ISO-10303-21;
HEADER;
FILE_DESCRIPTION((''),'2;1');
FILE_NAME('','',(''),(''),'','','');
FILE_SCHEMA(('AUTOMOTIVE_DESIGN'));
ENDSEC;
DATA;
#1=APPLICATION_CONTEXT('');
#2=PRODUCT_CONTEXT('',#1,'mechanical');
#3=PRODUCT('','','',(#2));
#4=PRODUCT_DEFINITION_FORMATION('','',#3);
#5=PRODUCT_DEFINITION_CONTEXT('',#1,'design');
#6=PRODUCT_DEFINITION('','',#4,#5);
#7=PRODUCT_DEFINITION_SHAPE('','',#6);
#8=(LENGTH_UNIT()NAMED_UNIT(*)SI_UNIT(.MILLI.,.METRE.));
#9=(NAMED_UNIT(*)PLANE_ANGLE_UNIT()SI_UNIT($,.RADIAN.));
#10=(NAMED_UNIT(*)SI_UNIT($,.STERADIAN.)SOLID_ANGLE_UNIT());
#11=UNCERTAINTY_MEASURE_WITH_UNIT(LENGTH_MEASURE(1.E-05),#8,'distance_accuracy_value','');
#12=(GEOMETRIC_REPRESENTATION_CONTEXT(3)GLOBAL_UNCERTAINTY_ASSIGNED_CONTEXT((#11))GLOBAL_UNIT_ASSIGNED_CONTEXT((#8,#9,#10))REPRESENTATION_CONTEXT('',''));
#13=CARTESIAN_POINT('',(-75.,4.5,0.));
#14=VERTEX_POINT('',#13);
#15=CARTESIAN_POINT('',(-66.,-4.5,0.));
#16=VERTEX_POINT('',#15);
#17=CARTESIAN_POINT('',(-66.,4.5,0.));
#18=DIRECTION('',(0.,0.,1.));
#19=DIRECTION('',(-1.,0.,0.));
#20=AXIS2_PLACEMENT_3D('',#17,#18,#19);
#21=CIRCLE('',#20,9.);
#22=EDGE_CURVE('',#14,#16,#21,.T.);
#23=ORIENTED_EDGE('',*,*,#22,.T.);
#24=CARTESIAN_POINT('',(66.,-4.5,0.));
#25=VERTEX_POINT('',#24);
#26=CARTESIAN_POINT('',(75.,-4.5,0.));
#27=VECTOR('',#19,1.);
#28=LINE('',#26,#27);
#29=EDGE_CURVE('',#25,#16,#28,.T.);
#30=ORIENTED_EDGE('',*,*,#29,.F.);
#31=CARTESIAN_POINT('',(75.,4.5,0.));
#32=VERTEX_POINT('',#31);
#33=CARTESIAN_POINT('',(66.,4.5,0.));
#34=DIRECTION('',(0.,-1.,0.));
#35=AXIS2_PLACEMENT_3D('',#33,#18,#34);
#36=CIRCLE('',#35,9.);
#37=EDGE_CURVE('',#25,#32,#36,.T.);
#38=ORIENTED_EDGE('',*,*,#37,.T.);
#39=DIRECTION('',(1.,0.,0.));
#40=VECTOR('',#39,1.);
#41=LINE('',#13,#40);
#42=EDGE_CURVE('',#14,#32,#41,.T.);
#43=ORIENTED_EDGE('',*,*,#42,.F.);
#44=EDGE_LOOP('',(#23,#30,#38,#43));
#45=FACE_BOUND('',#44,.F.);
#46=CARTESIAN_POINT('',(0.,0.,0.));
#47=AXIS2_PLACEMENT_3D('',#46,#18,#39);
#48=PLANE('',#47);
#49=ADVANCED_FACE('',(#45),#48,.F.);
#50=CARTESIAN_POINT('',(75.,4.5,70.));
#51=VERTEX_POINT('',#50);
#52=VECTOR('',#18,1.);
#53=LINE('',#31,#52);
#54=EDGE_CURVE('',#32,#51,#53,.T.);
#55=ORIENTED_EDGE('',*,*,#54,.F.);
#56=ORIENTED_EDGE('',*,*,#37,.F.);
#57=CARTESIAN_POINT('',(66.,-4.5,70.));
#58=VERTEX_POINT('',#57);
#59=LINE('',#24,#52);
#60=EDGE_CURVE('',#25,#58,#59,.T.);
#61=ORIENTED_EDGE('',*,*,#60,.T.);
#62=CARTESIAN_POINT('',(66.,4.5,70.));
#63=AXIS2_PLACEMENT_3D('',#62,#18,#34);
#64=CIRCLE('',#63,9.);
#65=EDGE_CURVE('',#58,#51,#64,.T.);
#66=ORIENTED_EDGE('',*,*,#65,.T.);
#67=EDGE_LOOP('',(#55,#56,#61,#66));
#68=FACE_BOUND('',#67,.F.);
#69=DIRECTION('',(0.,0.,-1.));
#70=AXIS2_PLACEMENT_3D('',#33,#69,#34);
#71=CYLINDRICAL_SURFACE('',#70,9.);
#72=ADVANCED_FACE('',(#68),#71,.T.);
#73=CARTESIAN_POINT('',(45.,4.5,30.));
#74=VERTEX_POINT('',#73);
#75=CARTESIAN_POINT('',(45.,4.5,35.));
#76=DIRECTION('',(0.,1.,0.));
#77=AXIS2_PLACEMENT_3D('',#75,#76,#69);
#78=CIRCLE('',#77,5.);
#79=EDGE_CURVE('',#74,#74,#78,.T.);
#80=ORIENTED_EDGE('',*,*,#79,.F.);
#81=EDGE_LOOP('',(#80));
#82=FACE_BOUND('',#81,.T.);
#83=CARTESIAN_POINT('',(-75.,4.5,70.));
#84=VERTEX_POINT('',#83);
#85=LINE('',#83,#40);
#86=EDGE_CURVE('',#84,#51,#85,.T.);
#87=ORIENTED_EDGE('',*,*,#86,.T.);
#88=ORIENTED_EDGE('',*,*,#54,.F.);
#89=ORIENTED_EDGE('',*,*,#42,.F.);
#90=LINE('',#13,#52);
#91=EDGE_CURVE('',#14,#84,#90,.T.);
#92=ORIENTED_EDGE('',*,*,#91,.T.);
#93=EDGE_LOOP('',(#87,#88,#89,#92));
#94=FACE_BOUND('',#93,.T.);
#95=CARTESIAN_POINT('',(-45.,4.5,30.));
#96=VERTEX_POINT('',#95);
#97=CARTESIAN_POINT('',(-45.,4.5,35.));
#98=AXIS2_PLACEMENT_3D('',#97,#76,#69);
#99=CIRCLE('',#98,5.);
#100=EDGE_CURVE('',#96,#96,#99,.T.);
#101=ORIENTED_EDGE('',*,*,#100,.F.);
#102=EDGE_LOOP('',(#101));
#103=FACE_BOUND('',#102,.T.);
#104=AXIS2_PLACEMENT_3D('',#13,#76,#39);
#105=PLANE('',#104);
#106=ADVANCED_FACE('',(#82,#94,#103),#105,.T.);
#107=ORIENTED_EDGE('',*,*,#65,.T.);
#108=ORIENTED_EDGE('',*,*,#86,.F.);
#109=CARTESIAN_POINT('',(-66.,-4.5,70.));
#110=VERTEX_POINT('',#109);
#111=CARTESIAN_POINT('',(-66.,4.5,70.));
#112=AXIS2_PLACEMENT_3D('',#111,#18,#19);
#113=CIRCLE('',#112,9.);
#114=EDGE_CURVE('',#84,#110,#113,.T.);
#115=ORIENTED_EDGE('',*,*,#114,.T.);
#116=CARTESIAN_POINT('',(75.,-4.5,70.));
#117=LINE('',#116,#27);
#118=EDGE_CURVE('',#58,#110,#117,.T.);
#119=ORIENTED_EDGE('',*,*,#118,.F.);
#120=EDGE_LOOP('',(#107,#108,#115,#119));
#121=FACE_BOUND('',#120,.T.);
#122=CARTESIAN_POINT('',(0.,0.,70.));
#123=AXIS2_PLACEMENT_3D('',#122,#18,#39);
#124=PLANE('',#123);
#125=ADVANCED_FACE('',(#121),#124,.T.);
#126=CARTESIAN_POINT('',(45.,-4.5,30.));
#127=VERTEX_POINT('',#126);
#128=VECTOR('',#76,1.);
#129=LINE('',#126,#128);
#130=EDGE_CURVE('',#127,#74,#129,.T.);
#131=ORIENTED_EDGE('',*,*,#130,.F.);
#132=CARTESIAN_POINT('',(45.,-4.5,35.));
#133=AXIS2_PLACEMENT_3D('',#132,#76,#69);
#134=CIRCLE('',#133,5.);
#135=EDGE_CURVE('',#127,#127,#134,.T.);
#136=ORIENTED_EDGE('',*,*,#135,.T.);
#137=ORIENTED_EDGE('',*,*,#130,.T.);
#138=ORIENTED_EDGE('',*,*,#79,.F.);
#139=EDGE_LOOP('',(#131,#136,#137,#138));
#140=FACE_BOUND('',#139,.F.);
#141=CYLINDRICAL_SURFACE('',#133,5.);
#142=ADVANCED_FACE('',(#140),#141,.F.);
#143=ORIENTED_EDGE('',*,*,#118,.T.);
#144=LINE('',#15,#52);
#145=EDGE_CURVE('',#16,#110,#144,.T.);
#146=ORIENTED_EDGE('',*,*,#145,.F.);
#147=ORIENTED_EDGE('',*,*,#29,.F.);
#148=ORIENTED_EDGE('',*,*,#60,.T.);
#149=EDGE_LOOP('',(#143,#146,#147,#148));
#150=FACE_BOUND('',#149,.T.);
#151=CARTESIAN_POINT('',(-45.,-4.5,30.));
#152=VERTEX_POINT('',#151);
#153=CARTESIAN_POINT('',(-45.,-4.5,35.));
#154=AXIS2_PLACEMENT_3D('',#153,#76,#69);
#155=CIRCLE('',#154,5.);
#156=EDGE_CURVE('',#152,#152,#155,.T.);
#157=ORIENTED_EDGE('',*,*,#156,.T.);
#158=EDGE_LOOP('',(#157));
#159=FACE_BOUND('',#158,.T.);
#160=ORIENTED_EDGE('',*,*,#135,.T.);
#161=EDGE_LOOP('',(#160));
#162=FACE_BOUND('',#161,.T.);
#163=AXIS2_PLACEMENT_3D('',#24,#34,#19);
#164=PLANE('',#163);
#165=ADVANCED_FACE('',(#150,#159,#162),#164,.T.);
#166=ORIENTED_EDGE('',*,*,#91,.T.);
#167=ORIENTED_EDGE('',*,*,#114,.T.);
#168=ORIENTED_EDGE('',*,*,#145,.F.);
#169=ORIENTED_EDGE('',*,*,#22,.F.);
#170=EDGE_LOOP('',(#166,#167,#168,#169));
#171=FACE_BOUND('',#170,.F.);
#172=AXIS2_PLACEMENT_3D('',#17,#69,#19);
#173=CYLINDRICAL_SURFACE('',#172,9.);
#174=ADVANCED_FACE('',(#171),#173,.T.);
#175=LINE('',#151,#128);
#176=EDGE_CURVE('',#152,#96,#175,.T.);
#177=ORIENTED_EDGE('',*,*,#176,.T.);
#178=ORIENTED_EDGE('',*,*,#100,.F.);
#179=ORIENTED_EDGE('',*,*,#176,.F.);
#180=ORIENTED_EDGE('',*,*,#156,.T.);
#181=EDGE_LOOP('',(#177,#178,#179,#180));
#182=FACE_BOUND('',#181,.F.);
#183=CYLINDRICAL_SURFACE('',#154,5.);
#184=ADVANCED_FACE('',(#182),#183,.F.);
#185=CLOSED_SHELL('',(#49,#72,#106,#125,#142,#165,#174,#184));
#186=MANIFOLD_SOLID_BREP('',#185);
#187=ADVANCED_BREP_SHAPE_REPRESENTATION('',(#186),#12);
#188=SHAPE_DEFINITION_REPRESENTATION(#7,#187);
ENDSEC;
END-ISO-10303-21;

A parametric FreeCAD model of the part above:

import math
import FreeCAD as App
import Part
import Sketcher

V = App.Vector

doc = App.newDocument("Part")
params = doc.addObject("Spreadsheet::Sheet", "Params")
for row, (alias, value) in enumerate([
    ("sketch1_radius", "9 mm"),
    ("sketch1_width", "150 mm"),
    ("pad1_length", "70 mm"),
    ("sketch2_diameter", "10 mm"),
    ("hole_diameter", "10 mm"),
], start=1):
    params.set(f"A{row}", alias)
    params.set(f"B{row}", "=" + value)
    params.setAlias(f"B{row}", alias)

body = doc.addObject("PartDesign::Body", "Body")

# Sketch on XY plane
sketch1 = doc.addObject("Sketcher::SketchObject", "Sketch")
body.addObject(sketch1)
sketch1.AttachmentSupport = (doc.XY_Plane, [""])
sketch1.MapMode = "FlatFace"
sketch1.addGeometry([
    Part.LineSegment(V(75, 4.5, 0), V(-75, 4.5, 0)),
    Part.ArcOfCircle(Part.Circle(V(-66, 4.5, 0), V(0, 0, 1), 9), math.radians(180), math.radians(270)),
    Part.LineSegment(V(-66, -4.5, 0), V(66, -4.5, 0)),
    Part.ArcOfCircle(Part.Circle(V(66, 4.5, 0), V(0, 0, 1), 9), math.radians(-90), math.radians(0)),
], False)
sketch1.addConstraint([
    Sketcher.Constraint("Coincident", 0, 2, 1, 1),
    Sketcher.Constraint("Tangent", 1, 2, 2, 1),
    Sketcher.Constraint("Tangent", 2, 2, 3, 1),
    Sketcher.Constraint("Coincident", 3, 2, 0, 1),
    Sketcher.Constraint("Horizontal", 0),
    Sketcher.Constraint("Horizontal", 2),
    Sketcher.Constraint("Equal", 1, 3),
    Sketcher.Constraint("Horizontal", 3, 3, 0, 2),
    Sketcher.Constraint("Radius", 1, 9.0),
    Sketcher.Constraint("DistanceX", 0, 2, 0, 1, 150.0),
    Sketcher.Constraint("DistanceX", 1, 3, -1, 1, 66.0),
    Sketcher.Constraint("DistanceY", -1, 1, 1, 3, 4.5),
])
sketch1.setExpression("Constraints[8]", "Params.sketch1_radius")
sketch1.setExpression("Constraints[9]", "Params.sketch1_width")
pad1 = doc.addObject("PartDesign::Pad", "Pad")
body.addObject(pad1)
pad1.Profile = sketch1
pad1.setExpression("Length", "Params.pad1_length")

# Sketch on XZ plane
sketch2 = doc.addObject("Sketcher::SketchObject", "Sketch001")
body.addObject(sketch2)
sketch2.AttachmentSupport = (doc.XZ_Plane, [""])
sketch2.MapMode = "FlatFace"
sketch2.AttachmentOffset = App.Placement(V(0, 0, 4.5), App.Rotation())
sketch2.addGeometry([
    Part.Circle(V(-45, 35, 0), V(0, 0, 1), 5),
    Part.Circle(V(45, 35, 0), V(0, 0, 1), 5),
], False)
sketch2.addConstraint([
    Sketcher.Constraint("Equal", 0, 1),
    Sketcher.Constraint("Symmetric", 0, 3, 1, 3, -2),
    Sketcher.Constraint("Diameter", 0, 10.0),
    Sketcher.Constraint("DistanceX", 0, 3, -1, 1, 45.0),
    Sketcher.Constraint("DistanceY", -1, 1, 0, 3, 35.0),
])
sketch2.setExpression("Constraints[2]", "Params.sketch2_diameter")
doc.recompute()
hole = doc.addObject("PartDesign::Hole", "Hole")
body.addObject(hole)
hole.Profile = sketch2
hole.ThreadType = "None"
hole.setExpression("Diameter", "Params.hole_diameter")
hole.DepthType = "ThroughAll"

doc.recompute()
